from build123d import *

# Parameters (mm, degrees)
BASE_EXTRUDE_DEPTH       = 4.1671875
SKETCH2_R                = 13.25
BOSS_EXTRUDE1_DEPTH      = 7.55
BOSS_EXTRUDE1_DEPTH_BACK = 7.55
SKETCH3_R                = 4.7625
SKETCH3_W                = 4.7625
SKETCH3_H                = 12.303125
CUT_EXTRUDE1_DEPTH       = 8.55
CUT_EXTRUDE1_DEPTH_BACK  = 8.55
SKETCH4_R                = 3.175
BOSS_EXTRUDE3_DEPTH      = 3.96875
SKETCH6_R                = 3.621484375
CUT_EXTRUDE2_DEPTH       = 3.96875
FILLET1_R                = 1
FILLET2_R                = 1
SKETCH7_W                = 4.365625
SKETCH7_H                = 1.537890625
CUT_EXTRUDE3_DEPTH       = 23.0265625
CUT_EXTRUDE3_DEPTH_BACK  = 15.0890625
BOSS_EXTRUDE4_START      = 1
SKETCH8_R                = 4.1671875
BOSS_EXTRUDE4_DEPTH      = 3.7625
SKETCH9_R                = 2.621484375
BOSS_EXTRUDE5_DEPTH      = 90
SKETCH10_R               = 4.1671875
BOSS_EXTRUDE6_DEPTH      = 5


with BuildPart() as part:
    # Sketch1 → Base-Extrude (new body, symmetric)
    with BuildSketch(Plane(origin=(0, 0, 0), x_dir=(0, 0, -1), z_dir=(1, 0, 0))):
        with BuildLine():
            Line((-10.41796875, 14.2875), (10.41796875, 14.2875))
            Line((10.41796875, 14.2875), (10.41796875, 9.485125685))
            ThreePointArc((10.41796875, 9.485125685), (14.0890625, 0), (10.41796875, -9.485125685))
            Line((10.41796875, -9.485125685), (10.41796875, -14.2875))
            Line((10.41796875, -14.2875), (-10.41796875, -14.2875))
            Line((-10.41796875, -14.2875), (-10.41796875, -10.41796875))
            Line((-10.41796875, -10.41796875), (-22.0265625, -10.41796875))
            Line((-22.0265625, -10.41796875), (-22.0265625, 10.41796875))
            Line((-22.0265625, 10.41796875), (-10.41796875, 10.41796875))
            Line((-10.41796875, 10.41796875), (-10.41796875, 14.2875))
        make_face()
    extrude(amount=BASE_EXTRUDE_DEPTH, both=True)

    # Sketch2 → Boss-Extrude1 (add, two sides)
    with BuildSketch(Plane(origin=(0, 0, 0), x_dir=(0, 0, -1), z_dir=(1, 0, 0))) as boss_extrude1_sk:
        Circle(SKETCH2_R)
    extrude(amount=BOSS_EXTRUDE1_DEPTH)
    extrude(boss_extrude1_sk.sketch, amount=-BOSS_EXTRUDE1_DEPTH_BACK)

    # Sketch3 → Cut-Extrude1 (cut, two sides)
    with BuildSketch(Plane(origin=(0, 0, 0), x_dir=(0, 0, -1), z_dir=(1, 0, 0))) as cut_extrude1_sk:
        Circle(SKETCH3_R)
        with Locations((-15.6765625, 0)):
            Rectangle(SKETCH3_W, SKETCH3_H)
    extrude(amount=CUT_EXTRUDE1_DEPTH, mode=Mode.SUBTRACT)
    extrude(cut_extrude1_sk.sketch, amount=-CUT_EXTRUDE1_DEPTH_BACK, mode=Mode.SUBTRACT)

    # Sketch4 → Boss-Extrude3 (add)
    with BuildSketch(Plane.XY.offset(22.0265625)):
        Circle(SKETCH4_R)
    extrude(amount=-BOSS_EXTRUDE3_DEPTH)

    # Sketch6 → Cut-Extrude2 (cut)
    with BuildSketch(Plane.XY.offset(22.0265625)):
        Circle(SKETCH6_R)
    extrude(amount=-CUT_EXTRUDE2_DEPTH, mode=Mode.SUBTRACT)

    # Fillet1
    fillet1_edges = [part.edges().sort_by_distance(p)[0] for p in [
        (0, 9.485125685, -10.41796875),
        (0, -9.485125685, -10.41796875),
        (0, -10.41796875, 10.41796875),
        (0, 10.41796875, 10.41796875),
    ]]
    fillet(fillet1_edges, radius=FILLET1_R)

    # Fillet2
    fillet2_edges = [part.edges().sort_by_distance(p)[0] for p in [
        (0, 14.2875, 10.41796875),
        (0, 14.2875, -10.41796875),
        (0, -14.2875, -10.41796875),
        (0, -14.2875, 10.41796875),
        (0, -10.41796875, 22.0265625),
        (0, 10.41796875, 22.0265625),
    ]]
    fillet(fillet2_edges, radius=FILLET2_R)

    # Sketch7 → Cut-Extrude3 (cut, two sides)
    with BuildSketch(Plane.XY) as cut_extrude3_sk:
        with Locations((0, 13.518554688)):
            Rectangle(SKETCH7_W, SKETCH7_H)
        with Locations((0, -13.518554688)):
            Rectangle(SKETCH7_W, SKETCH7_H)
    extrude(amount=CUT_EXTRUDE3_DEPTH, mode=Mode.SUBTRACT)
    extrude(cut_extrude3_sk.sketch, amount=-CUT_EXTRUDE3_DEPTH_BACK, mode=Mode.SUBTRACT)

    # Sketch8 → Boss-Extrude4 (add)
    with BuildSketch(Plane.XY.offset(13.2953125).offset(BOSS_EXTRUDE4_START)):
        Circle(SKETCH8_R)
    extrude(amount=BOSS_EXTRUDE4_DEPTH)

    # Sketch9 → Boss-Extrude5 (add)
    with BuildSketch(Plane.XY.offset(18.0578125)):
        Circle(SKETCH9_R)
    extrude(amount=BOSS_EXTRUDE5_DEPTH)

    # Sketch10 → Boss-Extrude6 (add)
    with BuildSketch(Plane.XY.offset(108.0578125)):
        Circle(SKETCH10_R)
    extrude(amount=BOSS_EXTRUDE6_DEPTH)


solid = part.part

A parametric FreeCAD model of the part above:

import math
import FreeCAD as App
import Part
import Sketcher
from FreeCAD import Vector
Q = App.Units.Quantity


def edges_at(feature, points):
    """Names of the edges that pass closest to the given points."""
    edges = feature.Shape.Edges
    near = lambda p: min(range(len(edges)), key=lambda i: edges[i].distToShape(Part.Vertex(*p))[0])
    return sorted({f"Edge{near(p) + 1}" for p in points})

doc = App.newDocument("Part")
body = doc.addObject("PartDesign::Body", "Body")

sketch1 = body.newObject("Sketcher::SketchObject", "Sketch")
sketch1.AttachmentSupport = (doc.getObject("YZ_Plane"), [""])
sketch1.MapMode = "FlatFace"
sketch1.addGeometry([
    Part.LineSegment(Vector(14.3, -10.4, 0), Vector(14.3, 10.4, 0)),
    Part.LineSegment(Vector(14.3, 10.4, 0), Vector(10.4, 10.4, 0)),
    Part.LineSegment(Vector(10.4, 10.4, 0), Vector(10.4, 22, 0)),
    Part.LineSegment(Vector(10.4, 22, 0), Vector(-10.4, 22, 0)),
    Part.LineSegment(Vector(-10.4, 22, 0), Vector(-10.4, 10.4, 0)),
    Part.LineSegment(Vector(-10.4, 10.4, 0), Vector(-14.3, 10.4, 0)),
    Part.LineSegment(Vector(-14.3, 10.4, 0), Vector(-14.3, -10.4, 0)),
    Part.LineSegment(Vector(-14.3, -10.4, 0), Vector(-9.5, -10.4, 0)),
    Part.ArcOfCircle(Part.Circle(Vector(0, 0, 0), Vector(0, 0, 1), 14.1), math.radians(-132), math.radians(-48)),
    Part.LineSegment(Vector(9.5, -10.4, 0), Vector(14.3, -10.4, 0)),
], False)
sketch1.addConstraint([
    Sketcher.Constraint("Coincident", 0, 2, 1, 1),
    Sketcher.Constraint("Coincident", 1, 2, 2, 1),
    Sketcher.Constraint("Coincident", 2, 2, 3, 1),
    Sketcher.Constraint("Coincident", 3, 2, 4, 1),
    Sketcher.Constraint("Coincident", 4, 2, 5, 1),
    Sketcher.Constraint("Coincident", 5, 2, 6, 1),
    Sketcher.Constraint("Coincident", 6, 2, 7, 1),
    Sketcher.Constraint("Coincident", 7, 2, 8, 1),
    Sketcher.Constraint("Coincident", 8, 2, 9, 1),
    Sketcher.Constraint("Coincident", 9, 2, 0, 1),
    Sketcher.Constraint("Vertical", 0),
    Sketcher.Constraint("Horizontal", 1),
    Sketcher.Constraint("Vertical", 2),
    Sketcher.Constraint("Horizontal", 3),
    Sketcher.Constraint("Vertical", 4),
    Sketcher.Constraint("Horizontal", 5),
    Sketcher.Constraint("Vertical", 6),
    Sketcher.Constraint("Horizontal", 7),
    Sketcher.Constraint("Horizontal", 9),
    Sketcher.Constraint("Coincident", 8, 3, -1, 1),
    Sketcher.Constraint("Symmetric", 0, 2, 6, 2, -1, 1),
    Sketcher.Constraint("Symmetric", 1, 2, 4, 2, -2),
    Sketcher.Constraint("Horizontal", 7, 2, 8, 2),
    Sketcher.Constraint("Equal", 3, 0),
    Sketcher.Constraint("DistanceX", -1, 1, 0, 2, Q("0.5625 in")),
    Sketcher.Constraint("Radius", 8, Q("14.089063 mm")),
    Sketcher.Constraint("DistanceX", 1, 2, 1, 1, Q("3.869531 mm")),
    Sketcher.Constraint("DistanceY", 2, 1, 2, 2, Q("11.608594 mm")),
])
pad1 = body.newObject("PartDesign::Pad", "Pad")
pad1.Profile = sketch1
pad1.Length = Q("0.328125 in")
pad1.Midplane = True

sketch2 = body.newObject("Sketcher::SketchObject", "Sketch001")
sketch2.AttachmentSupport = (doc.getObject("YZ_Plane"), [""])
sketch2.MapMode = "FlatFace"
sketch2.addGeometry(Part.Circle(Vector(0, 0, 0), Vector(0, 0, 1), 13), False)
sketch2.addConstraint([
    Sketcher.Constraint("Coincident", 0, 3, -1, 1),
    Sketcher.Constraint("Diameter", 0, Q("26.5 mm")),
])
pad2 = body.newObject("PartDesign::Pad", "Pad001")
pad2.Profile = sketch2
pad2.Type = "TwoLengths"
pad2.Length = 7.55
pad2.Length2 = 7.55

sketch3 = body.newObject("Sketcher::SketchObject", "Sketch002")
sketch3.AttachmentSupport = (doc.getObject("YZ_Plane"), [""])
sketch3.MapMode = "FlatFace"
sketch3.addGeometry([
    Part.Circle(Vector(0, 0, 0), Vector(0, 0, 1), 4.8),
    Part.LineSegment(Vector(6.2, 18.1, 0), Vector(-6.2, 18.1, 0)),
    Part.LineSegment(Vector(-6.2, 18.1, 0), Vector(-6.2, 13.3, 0)),
    Part.LineSegment(Vector(-6.2, 13.3, 0), Vector(6.2, 13.3, 0)),
    Part.LineSegment(Vector(6.2, 13.3, 0), Vector(6.2, 18.1, 0)),
], False)
sketch3.addConstraint([
    Sketcher.Constraint("Coincident", 1, 2, 2, 1),
    Sketcher.Constraint("Coincident", 2, 2, 3, 1),
    Sketcher.Constraint("Coincident", 3, 2, 4, 1),
    Sketcher.Constraint("Coincident", 4, 2, 1, 1),
    Sketcher.Constraint("Horizontal", 1),
    Sketcher.Constraint("Vertical", 2),
    Sketcher.Constraint("Horizontal", 3),
    Sketcher.Constraint("Vertical", 4),
    Sketcher.Constraint("Coincident", 0, 3, -1, 1),
    Sketcher.Constraint("Diameter", 0, Q("0.375 in")),
    Sketcher.Constraint("DistanceX", 1, 2, 1, 1, Q("0.484375 in")),
    Sketcher.Constraint("DistanceY", 2, 2, 2, 1, Q("0.1875 in")),
    Sketcher.Constraint("DistanceX", 1, 2, -1, 1, Q("6.151562 mm")),
    Sketcher.Constraint("DistanceY", -1, 1, 1, 2, Q("18.057813 mm")),
])
pocket1 = body.newObject("PartDesign::Pocket", "Pocket")
pocket1.Profile = sketch3
pocket1.Type = "ThroughAll"
pocket1.Midplane = True

sketch4 = body.newObject("Sketcher::SketchObject", "Sketch003")
sketch4.AttachmentSupport = (doc.getObject("XY_Plane"), [""])
sketch4.MapMode = "FlatFace"
sketch4.AttachmentOffset = App.Placement(Vector(0, 0, 22.026563), App.Rotation())
sketch4.addGeometry(Part.Circle(Vector(0, 0, 0), Vector(0, 0, 1), 3.2), False)
sketch4.addConstraint([
    Sketcher.Constraint("Coincident", 0, 3, -1, 1),
    Sketcher.Constraint("Diameter", 0, Q("0.25 in")),
])
pad3 = body.newObject("PartDesign::Pad", "Pad002")
pad3.Profile = sketch4
pad3.Length = Q("0.15625 in")
pad3.Reversed = True

sketch5 = body.newObject("Sketcher::SketchObject", "Sketch004")
sketch5.AttachmentSupport = (doc.getObject("XY_Plane"), [""])
sketch5.MapMode = "FlatFace"
sketch5.AttachmentOffset = App.Placement(Vector(0, 0, 22.026563), App.Rotation())
sketch5.addGeometry(Part.Circle(Vector(0, 0, 0), Vector(0, 0, 1), 3.6), False)
sketch5.addConstraint([
    Sketcher.Constraint("Coincident", 0, 3, -1, 1),
    Sketcher.Constraint("Diameter", 0, Q("7.242969 mm")),
])
pocket2 = body.newObject("PartDesign::Pocket", "Pocket001")
pocket2.Profile = sketch5
pocket2.Length = Q("0.15625 in")
doc.recompute()

fillet = body.newObject("PartDesign::Fillet", "Fillet")
fillet.Base = (pocket2, edges_at(pocket2, [
    (0, 9.485, -10.418),
    (0, -9.485, -10.418),
    (0, -10.418, 10.418),
    (0, 10.418, 10.418),
]))
fillet.Radius = 1
doc.recompute()

fillet2 = body.newObject("PartDesign::Fillet", "Fillet001")
fillet2.Base = (fillet, edges_at(fillet, [
    (0, 14.287, 10.418),
    (0, 14.287, -10.418),
    (0, -14.287, -10.418),
    (0, -14.287, 10.418),
    (0, -10.418, 22.027),
    (0, 10.418, 22.027),
]))
fillet2.Radius = 1

sketch6 = body.newObject("Sketcher::SketchObject", "Sketch005")
sketch6.AttachmentSupport = (doc.getObject("XY_Plane"), [""])
sketch6.MapMode = "FlatFace"
sketch6.addGeometry([
    Part.LineSegment(Vector(-2.2, 14.3, 0), Vector(-2.2, 12.7, 0)),
    Part.LineSegment(Vector(-2.2, 12.7, 0), Vector(2.2, 12.7, 0)),
    Part.LineSegment(Vector(2.2, 12.7, 0), Vector(2.2, 14.3, 0)),
    Part.LineSegment(Vector(2.2, 14.3, 0), Vector(-2.2, 14.3, 0)),
    Part.LineSegment(Vector(-2.2, -12.7, 0), Vector(-2.2, -14.3, 0)),
    Part.LineSegment(Vector(-2.2, -14.3, 0), Vector(2.2, -14.3, 0)),
    Part.LineSegment(Vector(2.2, -14.3, 0), Vector(2.2, -12.7, 0)),
    Part.LineSegment(Vector(2.2, -12.7, 0), Vector(-2.2, -12.7, 0)),
], False)
sketch6.addConstraint([
    Sketcher.Constraint("Coincident", 0, 2, 1, 1),
    Sketcher.Constraint("Coincident", 1, 2, 2, 1),
    Sketcher.Constraint("Coincident", 2, 2, 3, 1),
    Sketcher.Constraint("Coincident", 3, 2, 0, 1),
    Sketcher.Constraint("Coincident", 4, 2, 5, 1),
    Sketcher.Constraint("Coincident", 5, 2, 6, 1),
    Sketcher.Constraint("Coincident", 6, 2, 7, 1),
    Sketcher.Constraint("Coincident", 7, 2, 4, 1),
    Sketcher.Constraint("Vertical", 0),
    Sketcher.Constraint("Horizontal", 1),
    Sketcher.Constraint("Vertical", 2),
    Sketcher.Constraint("Horizontal", 3),
    Sketcher.Constraint("Vertical", 4),
    Sketcher.Constraint("Horizontal", 5),
    Sketcher.Constraint("Vertical", 6),
    Sketcher.Constraint("Horizontal", 7),
    Sketcher.Constraint("Symmetric", 2, 2, 4, 2, -1, 1),
    Sketcher.Constraint("Symmetric", 0, 2, 6, 2, -1, 1),
    Sketcher.Constraint("Vertical", 3, 2, 4, 2),
    Sketcher.Constraint("DistanceX", 1, 1, 1, 2, Q("0.171875 in")),
    Sketcher.Constraint("DistanceY", -1, 1, 2, 2, Q("0.5625 in")),
    Sketcher.Constraint("DistanceY", 0, 2, 0, 1, Q("1.537891 mm")),
])
pocket3 = body.newObject("PartDesign::Pocket", "Pocket002")
pocket3.Profile = sketch6
pocket3.Type = "ThroughAll"
pocket3.Midplane = True

sketch7 = body.newObject("Sketcher::SketchObject", "Sketch006")
sketch7.AttachmentSupport = (doc.getObject("XY_Plane"), [""])
sketch7.MapMode = "FlatFace"
sketch7.AttachmentOffset = App.Placement(Vector(0, 0, 14.295312), App.Rotation())
sketch7.addGeometry(Part.Circle(Vector(0, 0, 0), Vector(0, 0, 1), 4.2), False)
sketch7.addConstraint([
    Sketcher.Constraint("Coincident", 0, 3, -1, 1),
    Sketcher.Constraint("Diameter", 0, Q("0.328125 in")),
])
pad4 = body.newObject("PartDesign::Pad", "Pad003")
pad4.Profile = sketch7
pad4.Length = 3.7625

sketch8 = body.newObject("Sketcher::SketchObject", "Sketch007")
sketch8.AttachmentSupport = (doc.getObject("XY_Plane"), [""])
sketch8.MapMode = "FlatFace"
sketch8.AttachmentOffset = App.Placement(Vector(0, 0, 18.057813), App.Rotation())
sketch8.addGeometry(Part.Circle(Vector(0, 0, 0), Vector(0, 0, 1), 2.6), False)
sketch8.addConstraint([
    Sketcher.Constraint("Coincident", 0, 3, -1, 1),
    Sketcher.Constraint("Diameter", 0, Q("5.242969 mm")),
])
pad5 = body.newObject("PartDesign::Pad", "Pad004")
pad5.Profile = sketch8
pad5.Length = 90

sketch9 = body.newObject("Sketcher::SketchObject", "Sketch008")
sketch9.AttachmentSupport = (doc.getObject("XY_Plane"), [""])
sketch9.MapMode = "FlatFace"
sketch9.AttachmentOffset = App.Placement(Vector(0, 0, 108.057812), App.Rotation())
sketch9.addGeometry(Part.Circle(Vector(0, 0, 0), Vector(0, 0, 1), 4.2), False)
sketch9.addConstraint([
    Sketcher.Constraint("Coincident", 0, 3, -1, 1),
    Sketcher.Constraint("Diameter", 0, Q("0.328125 in")),
])
pad6 = body.newObject("PartDesign::Pad", "Pad005")
pad6.Profile = sketch9
pad6.Length = 5

doc.recompute()
